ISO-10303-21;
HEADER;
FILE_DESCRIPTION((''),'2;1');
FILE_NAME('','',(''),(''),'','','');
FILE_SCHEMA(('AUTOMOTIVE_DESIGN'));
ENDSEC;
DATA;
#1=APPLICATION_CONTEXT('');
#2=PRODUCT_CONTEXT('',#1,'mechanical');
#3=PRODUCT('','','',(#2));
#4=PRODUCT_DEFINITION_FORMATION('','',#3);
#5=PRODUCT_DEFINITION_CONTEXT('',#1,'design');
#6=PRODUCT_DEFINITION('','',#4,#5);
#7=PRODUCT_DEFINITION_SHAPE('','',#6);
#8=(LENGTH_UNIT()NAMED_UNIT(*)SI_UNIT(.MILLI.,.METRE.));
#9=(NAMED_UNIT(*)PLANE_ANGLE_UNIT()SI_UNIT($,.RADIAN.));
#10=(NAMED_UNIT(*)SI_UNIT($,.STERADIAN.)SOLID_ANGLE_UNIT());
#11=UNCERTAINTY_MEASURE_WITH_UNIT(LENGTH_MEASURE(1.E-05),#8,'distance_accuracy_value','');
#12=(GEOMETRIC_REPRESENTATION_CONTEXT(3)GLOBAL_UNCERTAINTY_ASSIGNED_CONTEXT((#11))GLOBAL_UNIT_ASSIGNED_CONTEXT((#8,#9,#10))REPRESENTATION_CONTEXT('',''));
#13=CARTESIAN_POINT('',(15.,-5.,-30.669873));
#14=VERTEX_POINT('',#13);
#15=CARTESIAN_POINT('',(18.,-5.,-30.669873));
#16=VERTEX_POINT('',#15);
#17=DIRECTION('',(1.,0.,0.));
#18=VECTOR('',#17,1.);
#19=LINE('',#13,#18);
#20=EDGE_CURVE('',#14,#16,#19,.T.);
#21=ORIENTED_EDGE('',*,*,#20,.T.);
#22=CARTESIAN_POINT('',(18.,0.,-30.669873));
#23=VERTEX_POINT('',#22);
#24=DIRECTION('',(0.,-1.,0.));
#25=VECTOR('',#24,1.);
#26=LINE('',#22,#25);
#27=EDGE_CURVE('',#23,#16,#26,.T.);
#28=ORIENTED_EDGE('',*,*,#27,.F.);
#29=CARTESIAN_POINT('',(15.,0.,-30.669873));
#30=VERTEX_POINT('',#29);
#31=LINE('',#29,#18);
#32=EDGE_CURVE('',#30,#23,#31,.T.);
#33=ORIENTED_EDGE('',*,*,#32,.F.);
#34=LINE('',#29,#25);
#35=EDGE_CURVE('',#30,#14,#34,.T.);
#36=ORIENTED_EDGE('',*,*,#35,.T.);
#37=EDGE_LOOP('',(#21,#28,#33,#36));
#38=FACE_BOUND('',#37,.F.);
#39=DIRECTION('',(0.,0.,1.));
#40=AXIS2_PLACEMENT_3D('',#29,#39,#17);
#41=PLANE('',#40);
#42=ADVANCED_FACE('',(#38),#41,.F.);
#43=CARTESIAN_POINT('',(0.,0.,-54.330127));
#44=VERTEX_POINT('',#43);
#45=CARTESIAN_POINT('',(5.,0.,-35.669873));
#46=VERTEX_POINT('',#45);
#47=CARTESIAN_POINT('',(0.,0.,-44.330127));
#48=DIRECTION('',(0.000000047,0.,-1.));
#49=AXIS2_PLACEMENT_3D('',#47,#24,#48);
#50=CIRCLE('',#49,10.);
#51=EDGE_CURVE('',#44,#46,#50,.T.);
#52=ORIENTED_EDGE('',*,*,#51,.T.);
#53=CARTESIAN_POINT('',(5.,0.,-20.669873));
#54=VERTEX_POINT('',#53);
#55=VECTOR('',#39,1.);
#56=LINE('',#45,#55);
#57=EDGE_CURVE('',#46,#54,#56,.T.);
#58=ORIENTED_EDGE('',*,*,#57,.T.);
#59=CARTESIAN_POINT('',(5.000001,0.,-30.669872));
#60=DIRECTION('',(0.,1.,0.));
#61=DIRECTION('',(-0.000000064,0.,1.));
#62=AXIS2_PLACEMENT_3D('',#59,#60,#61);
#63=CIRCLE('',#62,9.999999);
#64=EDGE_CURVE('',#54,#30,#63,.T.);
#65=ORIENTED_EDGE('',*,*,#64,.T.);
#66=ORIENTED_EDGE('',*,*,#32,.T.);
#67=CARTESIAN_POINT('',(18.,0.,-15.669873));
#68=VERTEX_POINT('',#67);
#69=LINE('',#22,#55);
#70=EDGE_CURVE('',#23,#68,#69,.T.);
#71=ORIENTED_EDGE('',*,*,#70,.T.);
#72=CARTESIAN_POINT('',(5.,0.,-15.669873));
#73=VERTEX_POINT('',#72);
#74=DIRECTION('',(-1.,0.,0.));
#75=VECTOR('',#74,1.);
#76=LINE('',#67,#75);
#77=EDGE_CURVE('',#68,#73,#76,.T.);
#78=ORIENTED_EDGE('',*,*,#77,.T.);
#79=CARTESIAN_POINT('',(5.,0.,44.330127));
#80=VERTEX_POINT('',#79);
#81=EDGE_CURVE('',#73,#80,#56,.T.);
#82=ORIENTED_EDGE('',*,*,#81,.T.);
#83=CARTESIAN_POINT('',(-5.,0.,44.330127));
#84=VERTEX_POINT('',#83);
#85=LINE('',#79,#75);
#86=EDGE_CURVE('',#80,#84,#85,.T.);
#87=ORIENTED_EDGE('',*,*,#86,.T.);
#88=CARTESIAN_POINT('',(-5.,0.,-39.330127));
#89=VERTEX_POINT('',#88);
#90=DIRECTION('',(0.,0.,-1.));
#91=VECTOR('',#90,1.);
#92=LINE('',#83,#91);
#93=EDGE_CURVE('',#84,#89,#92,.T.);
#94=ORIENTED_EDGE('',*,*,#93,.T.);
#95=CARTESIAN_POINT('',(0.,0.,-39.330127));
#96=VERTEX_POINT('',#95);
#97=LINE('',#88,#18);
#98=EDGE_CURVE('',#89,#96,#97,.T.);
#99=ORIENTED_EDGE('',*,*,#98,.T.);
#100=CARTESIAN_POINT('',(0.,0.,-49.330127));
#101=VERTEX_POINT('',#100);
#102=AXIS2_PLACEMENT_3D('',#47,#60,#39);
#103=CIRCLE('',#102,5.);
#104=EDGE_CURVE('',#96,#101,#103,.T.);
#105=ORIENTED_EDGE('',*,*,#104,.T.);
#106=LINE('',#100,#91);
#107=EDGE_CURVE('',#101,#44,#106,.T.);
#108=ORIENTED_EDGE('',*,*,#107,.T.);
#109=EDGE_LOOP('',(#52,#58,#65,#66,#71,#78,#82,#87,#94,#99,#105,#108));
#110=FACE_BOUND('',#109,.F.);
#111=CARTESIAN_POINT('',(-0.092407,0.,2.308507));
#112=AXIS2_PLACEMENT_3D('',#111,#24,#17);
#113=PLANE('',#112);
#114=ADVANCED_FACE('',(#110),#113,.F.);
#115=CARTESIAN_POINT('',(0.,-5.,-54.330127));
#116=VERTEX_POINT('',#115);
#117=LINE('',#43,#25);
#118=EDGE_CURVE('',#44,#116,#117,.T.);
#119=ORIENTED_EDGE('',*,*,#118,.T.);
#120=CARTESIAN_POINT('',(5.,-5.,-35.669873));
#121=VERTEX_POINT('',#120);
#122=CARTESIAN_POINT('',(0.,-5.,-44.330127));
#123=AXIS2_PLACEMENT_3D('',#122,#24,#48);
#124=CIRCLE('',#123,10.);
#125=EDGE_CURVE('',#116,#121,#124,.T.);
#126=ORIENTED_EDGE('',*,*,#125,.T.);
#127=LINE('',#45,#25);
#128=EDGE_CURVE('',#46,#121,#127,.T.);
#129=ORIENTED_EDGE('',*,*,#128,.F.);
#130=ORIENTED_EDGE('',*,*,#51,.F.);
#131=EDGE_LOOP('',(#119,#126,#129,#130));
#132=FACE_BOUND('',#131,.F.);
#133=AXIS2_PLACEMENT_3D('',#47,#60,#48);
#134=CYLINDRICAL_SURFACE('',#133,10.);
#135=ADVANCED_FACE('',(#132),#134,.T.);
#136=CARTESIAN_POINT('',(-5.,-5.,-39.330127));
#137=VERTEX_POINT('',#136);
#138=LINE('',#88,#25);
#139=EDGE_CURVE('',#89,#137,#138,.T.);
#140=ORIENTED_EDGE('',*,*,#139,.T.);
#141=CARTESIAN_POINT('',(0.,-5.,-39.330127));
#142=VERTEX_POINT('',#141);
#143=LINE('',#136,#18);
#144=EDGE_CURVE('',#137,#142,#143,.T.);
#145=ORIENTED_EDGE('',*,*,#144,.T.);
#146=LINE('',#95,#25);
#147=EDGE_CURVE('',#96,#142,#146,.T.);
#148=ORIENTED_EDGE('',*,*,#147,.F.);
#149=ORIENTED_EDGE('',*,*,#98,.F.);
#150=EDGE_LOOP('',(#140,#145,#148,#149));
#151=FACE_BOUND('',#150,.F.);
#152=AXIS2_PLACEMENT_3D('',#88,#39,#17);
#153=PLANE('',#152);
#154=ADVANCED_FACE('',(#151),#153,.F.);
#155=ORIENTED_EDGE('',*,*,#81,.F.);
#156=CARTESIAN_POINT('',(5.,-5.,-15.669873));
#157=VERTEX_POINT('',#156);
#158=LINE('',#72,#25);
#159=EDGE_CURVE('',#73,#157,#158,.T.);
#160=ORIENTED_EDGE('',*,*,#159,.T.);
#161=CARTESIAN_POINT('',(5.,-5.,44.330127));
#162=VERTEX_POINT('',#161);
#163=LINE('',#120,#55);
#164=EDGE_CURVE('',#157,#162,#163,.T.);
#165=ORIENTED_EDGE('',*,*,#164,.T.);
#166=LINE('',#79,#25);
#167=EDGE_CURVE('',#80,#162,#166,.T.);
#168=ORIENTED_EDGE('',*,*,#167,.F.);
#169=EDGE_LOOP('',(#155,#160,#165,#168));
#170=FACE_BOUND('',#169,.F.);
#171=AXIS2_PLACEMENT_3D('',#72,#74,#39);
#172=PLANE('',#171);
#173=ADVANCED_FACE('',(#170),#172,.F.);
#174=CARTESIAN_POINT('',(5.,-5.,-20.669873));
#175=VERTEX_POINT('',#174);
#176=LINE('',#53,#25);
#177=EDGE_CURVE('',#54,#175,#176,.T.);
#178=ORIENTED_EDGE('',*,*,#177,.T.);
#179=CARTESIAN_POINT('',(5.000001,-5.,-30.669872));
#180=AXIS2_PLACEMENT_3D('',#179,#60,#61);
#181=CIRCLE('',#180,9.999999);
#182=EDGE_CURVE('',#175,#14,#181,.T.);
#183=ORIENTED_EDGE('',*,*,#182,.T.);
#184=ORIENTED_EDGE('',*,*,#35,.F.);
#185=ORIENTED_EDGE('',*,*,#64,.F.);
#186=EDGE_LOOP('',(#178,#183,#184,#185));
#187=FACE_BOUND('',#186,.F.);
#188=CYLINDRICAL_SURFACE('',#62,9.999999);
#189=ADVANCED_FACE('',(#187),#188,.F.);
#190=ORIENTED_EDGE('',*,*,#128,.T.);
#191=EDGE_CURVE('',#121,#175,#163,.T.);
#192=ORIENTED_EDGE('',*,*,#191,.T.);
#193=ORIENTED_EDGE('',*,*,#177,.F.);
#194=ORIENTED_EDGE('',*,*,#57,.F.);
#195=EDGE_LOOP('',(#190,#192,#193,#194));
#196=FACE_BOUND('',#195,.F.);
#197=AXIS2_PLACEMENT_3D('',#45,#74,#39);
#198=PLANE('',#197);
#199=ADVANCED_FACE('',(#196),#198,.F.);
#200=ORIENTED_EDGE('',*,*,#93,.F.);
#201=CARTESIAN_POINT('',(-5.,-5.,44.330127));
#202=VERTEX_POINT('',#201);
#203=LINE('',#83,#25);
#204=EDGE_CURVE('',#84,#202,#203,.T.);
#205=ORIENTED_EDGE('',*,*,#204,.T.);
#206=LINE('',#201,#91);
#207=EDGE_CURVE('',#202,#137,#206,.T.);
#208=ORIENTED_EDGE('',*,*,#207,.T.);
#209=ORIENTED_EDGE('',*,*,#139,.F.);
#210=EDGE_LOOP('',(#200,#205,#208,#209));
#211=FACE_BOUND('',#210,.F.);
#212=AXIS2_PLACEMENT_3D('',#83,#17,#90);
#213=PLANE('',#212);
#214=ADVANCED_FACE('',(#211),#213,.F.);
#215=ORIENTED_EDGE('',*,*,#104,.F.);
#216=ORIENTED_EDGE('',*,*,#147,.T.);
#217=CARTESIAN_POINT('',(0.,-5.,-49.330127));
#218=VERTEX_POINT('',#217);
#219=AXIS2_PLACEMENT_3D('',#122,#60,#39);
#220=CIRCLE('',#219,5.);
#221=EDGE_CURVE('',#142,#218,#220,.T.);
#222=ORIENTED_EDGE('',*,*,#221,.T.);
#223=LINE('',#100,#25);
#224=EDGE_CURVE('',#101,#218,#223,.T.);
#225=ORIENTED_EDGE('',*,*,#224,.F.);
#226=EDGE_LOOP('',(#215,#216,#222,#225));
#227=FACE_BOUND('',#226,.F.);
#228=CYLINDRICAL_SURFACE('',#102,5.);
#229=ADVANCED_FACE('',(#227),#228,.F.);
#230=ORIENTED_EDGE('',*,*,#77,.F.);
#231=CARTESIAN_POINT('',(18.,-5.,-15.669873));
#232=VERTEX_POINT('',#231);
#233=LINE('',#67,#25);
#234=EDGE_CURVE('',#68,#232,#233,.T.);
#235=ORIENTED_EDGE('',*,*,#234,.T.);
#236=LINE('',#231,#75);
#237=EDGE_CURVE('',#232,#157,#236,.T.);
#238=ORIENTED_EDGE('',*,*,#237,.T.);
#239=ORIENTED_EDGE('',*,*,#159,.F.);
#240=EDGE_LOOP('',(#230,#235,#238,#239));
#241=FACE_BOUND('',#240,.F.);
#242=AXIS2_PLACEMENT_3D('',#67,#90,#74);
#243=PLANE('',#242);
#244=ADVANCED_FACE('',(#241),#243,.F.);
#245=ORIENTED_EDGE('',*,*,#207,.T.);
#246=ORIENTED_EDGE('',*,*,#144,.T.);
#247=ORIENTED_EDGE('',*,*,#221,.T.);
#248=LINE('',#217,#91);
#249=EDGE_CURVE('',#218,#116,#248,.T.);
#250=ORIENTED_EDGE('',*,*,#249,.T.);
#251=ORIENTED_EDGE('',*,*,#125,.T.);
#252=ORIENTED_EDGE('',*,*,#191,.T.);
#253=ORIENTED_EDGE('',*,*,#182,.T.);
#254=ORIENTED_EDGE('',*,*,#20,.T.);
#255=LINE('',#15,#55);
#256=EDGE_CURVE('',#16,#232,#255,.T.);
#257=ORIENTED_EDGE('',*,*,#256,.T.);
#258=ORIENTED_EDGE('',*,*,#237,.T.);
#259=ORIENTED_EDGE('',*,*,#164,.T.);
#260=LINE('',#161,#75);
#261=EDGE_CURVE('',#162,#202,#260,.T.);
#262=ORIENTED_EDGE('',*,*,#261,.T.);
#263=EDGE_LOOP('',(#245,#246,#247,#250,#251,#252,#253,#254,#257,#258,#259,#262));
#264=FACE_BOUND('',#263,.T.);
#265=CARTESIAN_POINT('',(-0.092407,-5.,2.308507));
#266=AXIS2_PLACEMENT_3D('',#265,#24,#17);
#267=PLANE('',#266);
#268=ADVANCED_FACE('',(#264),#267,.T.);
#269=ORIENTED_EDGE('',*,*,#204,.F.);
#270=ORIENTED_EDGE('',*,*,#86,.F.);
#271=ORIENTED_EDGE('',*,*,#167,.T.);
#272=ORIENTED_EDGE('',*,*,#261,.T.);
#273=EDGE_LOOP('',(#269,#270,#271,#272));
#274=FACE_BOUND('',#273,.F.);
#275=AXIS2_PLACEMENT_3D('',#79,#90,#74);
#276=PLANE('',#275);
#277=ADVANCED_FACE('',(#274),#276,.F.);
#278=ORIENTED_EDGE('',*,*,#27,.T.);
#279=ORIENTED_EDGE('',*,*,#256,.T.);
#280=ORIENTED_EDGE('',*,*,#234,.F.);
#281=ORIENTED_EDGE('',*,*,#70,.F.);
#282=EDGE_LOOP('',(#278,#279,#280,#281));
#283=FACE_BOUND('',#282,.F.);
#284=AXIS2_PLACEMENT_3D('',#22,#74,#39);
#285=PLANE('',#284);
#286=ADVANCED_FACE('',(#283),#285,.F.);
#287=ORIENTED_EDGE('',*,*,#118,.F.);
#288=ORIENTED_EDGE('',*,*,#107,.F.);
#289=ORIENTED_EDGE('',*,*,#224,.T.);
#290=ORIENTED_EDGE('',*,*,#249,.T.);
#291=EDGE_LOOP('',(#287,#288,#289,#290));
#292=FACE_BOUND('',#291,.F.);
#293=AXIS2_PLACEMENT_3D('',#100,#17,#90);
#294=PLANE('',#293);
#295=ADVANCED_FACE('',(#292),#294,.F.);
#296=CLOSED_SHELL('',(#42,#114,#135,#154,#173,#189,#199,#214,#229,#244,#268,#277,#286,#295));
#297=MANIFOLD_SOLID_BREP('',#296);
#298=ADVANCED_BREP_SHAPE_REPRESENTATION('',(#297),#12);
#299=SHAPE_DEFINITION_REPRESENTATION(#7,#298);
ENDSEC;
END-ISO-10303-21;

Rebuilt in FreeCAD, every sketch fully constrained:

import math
import FreeCAD as App
import Part
import Sketcher
from FreeCAD import Vector
Q = App.Units.Quantity

doc = App.newDocument("Part")
params = doc.addObject("Spreadsheet::Sheet", "Params")
for row, (alias, value) in enumerate([
    ("sketch1_radius", "5 mm"),
    ("sketch1_radius2", "10 mm"),
    ("sketch1_width", "10 mm"),
    ("sketch1_width2", "3 mm"),
    ("sketch1_height", "15 mm"),
    ("pad1_length", "5 mm"),
], start=1):
    params.set(f"A{row}", alias)
    params.set(f"B{row}", "=" + value)
    params.setAlias(f"B{row}", alias)

body = doc.addObject("PartDesign::Body", "Body")

sketch1 = doc.addObject("Sketcher::SketchObject", "Sketch")
body.addObject(sketch1)
sketch1.AttachmentSupport = (doc.XZ_Plane, [""])
sketch1.MapMode = "FlatFace"
sketch1.addGeometry([
    Part.LineSegment(Vector(5, 44.3, 0), Vector(-5, 44.3, 0)),
    Part.LineSegment(Vector(-5, 44.3, 0), Vector(-5, -39.3, 0)),
    Part.LineSegment(Vector(-5, -39.3, 0), Vector(0, -39.3, 0)),
    Part.ArcOfCircle(Part.Circle(Vector(0, -44.3, 0), Vector(0, 0, 1), 5), math.radians(-90), math.radians(90)),
    Part.LineSegment(Vector(0, -49.3, 0), Vector(0, -54.3, 0)),
    Part.ArcOfCircle(Part.Circle(Vector(0, -44.3, 0), Vector(0, 0, 1), 10), math.radians(-90), math.radians(60)),
    Part.LineSegment(Vector(5, -35.7, 0), Vector(5, -20.7, 0)),
    Part.ArcOfCircle(Part.Circle(Vector(5, -30.7, 0), Vector(0, 0, 1), 10), math.radians(0), math.radians(90)),
    Part.LineSegment(Vector(15, -30.7, 0), Vector(18, -30.7, 0)),
    Part.LineSegment(Vector(18, -30.7, 0), Vector(18, -15.7, 0)),
    Part.LineSegment(Vector(18, -15.7, 0), Vector(5, -15.7, 0)),
    Part.LineSegment(Vector(5, -15.7, 0), Vector(5, 44.3, 0)),
], False)
sketch1.addConstraint([
    Sketcher.Constraint("Coincident", 0, 2, 1, 1),
    Sketcher.Constraint("Coincident", 1, 2, 2, 1),
    Sketcher.Constraint("Tangent", 2, 2, 3, 2),
    Sketcher.Constraint("Coincident", 3, 1, 4, 1),
    Sketcher.Constraint("Coincident", 4, 2, 5, 1),
    Sketcher.Constraint("Coincident", 5, 2, 6, 1),
    Sketcher.Constraint("Coincident", 6, 2, 7, 2),
    Sketcher.Constraint("Coincident", 7, 1, 8, 1),
    Sketcher.Constraint("Coincident", 8, 2, 9, 1),
    Sketcher.Constraint("Coincident", 9, 2, 10, 1),
    Sketcher.Constraint("Coincident", 10, 2, 11, 1),
    Sketcher.Constraint("Coincident", 11, 2, 0, 1),
    Sketcher.Constraint("Horizontal", 0),
    Sketcher.Constraint("Vertical", 1),
    Sketcher.Constraint("Horizontal", 2),
    Sketcher.Constraint("Vertical", 4),
    Sketcher.Constraint("Vertical", 6),
    Sketcher.Constraint("Horizontal", 8),
    Sketcher.Constraint("Vertical", 9),
    Sketcher.Constraint("Horizontal", 10),
    Sketcher.Constraint("Vertical", 11),
    Sketcher.Constraint("Coincident", 5, 3, 3, 3),
    Sketcher.Constraint("Equal", 5, 7),
    Sketcher.Constraint("PointOnObject", 3, 3, -2),
    Sketcher.Constraint("PointOnObject", 3, 1, -2),
    Sketcher.Constraint("Vertical", 7, 3, 5, 2),
    Sketcher.Constraint("Vertical", 6, 2, 10, 2),
    Sketcher.Constraint("Equal", 2, 4),
    Sketcher.Constraint("Equal", 6, 9),
    Sketcher.Constraint("Radius", 3, Q("5 mm")),
    Sketcher.Constraint("Radius", 5, Q("10 mm")),
    Sketcher.Constraint("DistanceX", 0, 2, 0, 1, Q("10 mm")),
    Sketcher.Constraint("DistanceX", 8, 1, 8, 2, Q("3 mm")),
    Sketcher.Constraint("DistanceY", 6, 1, 6, 2, Q("15 mm")),
    Sketcher.Constraint("DistanceY", 11, 1, 11, 2, Q("60 mm")),
    Sketcher.Constraint("DistanceY", 7, 3, 0, 2, Q("74.999999 mm")),
    Sketcher.Constraint("DistanceY", 3, 3, -1, 1, Q("44.330127 mm")),
])
sketch1.setExpression("Constraints[29]", "Params.sketch1_radius")
sketch1.setExpression("Constraints[30]", "Params.sketch1_radius2")
sketch1.setExpression("Constraints[31]", "Params.sketch1_width")
sketch1.setExpression("Constraints[32]", "Params.sketch1_width2")
sketch1.setExpression("Constraints[33]", "Params.sketch1_height")
pad1 = doc.addObject("PartDesign::Pad", "Pad")
body.addObject(pad1)
pad1.Profile = sketch1
pad1.setExpression("Length", "Params.pad1_length")

doc.recompute()
